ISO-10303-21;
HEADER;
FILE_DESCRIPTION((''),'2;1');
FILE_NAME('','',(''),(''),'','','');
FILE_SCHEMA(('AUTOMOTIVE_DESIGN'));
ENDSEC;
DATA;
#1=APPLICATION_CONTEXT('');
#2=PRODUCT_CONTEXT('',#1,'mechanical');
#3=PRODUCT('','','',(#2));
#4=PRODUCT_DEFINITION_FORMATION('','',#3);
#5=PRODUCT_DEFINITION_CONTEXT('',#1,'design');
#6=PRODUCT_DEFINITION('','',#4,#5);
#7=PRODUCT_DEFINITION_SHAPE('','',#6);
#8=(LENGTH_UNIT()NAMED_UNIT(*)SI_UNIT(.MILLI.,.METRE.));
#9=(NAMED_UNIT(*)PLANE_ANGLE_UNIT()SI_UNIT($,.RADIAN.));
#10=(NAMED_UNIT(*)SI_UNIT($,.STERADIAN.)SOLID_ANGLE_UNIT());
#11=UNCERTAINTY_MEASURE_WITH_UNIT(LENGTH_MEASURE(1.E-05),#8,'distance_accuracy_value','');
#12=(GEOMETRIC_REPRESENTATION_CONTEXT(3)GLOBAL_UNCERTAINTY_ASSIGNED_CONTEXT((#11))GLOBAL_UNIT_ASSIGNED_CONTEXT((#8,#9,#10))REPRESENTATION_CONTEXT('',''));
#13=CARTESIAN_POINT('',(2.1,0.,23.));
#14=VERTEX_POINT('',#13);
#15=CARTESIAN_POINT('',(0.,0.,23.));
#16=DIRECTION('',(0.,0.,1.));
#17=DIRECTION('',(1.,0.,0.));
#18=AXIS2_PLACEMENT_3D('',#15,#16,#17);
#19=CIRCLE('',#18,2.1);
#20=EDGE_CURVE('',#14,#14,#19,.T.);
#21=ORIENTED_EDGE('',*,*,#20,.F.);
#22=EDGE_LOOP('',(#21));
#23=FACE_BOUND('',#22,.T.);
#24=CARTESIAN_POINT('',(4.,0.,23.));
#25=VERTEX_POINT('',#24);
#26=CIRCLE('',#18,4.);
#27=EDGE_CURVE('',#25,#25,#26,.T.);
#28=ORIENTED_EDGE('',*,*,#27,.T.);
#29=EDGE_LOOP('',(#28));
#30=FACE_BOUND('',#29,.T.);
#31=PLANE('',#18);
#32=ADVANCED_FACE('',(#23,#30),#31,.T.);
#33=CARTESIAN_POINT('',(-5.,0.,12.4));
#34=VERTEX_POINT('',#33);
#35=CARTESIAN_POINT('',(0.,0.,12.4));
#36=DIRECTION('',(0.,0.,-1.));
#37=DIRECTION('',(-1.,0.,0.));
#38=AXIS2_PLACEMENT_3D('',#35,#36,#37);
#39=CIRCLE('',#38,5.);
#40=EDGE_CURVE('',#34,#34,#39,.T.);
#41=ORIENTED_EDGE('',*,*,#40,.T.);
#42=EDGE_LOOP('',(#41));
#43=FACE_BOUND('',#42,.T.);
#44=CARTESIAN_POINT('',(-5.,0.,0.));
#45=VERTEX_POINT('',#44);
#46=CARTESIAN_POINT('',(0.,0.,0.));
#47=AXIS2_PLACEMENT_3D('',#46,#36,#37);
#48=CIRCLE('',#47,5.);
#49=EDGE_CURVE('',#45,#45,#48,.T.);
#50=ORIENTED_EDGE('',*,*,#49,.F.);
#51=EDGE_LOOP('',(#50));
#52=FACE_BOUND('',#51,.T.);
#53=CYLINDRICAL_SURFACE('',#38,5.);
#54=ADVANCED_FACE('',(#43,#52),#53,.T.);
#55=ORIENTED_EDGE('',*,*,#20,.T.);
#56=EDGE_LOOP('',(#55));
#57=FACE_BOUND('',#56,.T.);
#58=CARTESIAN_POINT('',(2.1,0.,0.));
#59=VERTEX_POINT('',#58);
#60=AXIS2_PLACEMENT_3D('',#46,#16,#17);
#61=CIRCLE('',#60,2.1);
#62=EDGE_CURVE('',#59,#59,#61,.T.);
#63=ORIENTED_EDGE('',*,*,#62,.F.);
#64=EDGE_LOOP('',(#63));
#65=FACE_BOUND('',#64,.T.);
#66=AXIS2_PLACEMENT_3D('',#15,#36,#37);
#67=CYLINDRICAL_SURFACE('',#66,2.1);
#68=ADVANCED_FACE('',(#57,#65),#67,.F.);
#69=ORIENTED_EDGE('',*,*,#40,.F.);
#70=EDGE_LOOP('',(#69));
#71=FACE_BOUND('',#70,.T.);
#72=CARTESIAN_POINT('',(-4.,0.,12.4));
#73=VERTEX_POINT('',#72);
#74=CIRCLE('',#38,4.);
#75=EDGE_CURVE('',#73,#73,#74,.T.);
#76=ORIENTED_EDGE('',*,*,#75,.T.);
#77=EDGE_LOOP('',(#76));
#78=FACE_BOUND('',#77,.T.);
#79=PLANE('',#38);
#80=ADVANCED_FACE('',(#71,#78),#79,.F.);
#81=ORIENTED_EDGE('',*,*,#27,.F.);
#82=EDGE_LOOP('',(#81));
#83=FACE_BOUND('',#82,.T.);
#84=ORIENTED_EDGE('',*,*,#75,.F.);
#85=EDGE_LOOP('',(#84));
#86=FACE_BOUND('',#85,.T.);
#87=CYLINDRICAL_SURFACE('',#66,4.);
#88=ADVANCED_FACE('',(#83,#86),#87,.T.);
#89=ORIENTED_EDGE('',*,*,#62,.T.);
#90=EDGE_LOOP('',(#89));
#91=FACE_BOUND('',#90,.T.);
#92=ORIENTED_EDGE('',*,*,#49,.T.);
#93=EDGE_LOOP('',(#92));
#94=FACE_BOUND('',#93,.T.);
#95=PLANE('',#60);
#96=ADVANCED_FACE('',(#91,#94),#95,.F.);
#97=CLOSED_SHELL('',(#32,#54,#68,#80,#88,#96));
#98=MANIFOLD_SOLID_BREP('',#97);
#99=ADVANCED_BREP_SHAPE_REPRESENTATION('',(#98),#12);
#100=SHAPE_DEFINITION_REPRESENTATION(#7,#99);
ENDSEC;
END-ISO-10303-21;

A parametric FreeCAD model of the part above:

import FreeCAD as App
import Part
import Sketcher
from FreeCAD import Vector
Q = App.Units.Quantity

doc = App.newDocument("Part")
body = doc.addObject("PartDesign::Body", "Body")

# Sketch on XY plane
sketch1 = body.newObject("Sketcher::SketchObject", "Sketch")
sketch1.AttachmentSupport = (doc.getObject("XY_Plane"), [""])
sketch1.MapMode = "FlatFace"
sketch1.addGeometry(Part.Circle(Vector(0, 0, 0), Vector(0, 0, 1), 4), False)
sketch1.addGeometry(Part.Circle(Vector(0, 0, 0), Vector(0, 0, 1), 2.1), False)
sketch1.addConstraint(Sketcher.Constraint("Coincident", 0, 3, -1, 1))
sketch1.addConstraint(Sketcher.Constraint("Coincident", 1, 3, -1, 1))
sketch1.addConstraint(Sketcher.Constraint("Diameter", 0, Q("8 mm")))
sketch1.addConstraint(Sketcher.Constraint("Diameter", 1, Q("4.2 mm")))
pad1 = body.newObject("PartDesign::Pad", "Pad")
pad1.Profile = sketch1
pad1.Length = 23

# Sketch on XY plane
sketch2 = body.newObject("Sketcher::SketchObject", "Sketch001")
sketch2.AttachmentSupport = (doc.getObject("XY_Plane"), [""])
sketch2.MapMode = "FlatFace"
sketch2.addGeometry(Part.Circle(Vector(0, 0, 0), Vector(0, 0, 1), 5), False)
sketch2.addGeometry(Part.Circle(Vector(0, 0, 0), Vector(0, 0, 1), 4), False)
sketch2.addConstraint(Sketcher.Constraint("Coincident", 0, 3, -1, 1))
sketch2.addConstraint(Sketcher.Constraint("Coincident", 1, 3, -1, 1))
sketch2.addConstraint(Sketcher.Constraint("Diameter", 0, Q("10 mm")))
sketch2.addConstraint(Sketcher.Constraint("Diameter", 1, Q("8 mm")))
pad2 = body.newObject("PartDesign::Pad", "Pad001")
pad2.Profile = sketch2
pad2.Length = 12.4

doc.recompute()
